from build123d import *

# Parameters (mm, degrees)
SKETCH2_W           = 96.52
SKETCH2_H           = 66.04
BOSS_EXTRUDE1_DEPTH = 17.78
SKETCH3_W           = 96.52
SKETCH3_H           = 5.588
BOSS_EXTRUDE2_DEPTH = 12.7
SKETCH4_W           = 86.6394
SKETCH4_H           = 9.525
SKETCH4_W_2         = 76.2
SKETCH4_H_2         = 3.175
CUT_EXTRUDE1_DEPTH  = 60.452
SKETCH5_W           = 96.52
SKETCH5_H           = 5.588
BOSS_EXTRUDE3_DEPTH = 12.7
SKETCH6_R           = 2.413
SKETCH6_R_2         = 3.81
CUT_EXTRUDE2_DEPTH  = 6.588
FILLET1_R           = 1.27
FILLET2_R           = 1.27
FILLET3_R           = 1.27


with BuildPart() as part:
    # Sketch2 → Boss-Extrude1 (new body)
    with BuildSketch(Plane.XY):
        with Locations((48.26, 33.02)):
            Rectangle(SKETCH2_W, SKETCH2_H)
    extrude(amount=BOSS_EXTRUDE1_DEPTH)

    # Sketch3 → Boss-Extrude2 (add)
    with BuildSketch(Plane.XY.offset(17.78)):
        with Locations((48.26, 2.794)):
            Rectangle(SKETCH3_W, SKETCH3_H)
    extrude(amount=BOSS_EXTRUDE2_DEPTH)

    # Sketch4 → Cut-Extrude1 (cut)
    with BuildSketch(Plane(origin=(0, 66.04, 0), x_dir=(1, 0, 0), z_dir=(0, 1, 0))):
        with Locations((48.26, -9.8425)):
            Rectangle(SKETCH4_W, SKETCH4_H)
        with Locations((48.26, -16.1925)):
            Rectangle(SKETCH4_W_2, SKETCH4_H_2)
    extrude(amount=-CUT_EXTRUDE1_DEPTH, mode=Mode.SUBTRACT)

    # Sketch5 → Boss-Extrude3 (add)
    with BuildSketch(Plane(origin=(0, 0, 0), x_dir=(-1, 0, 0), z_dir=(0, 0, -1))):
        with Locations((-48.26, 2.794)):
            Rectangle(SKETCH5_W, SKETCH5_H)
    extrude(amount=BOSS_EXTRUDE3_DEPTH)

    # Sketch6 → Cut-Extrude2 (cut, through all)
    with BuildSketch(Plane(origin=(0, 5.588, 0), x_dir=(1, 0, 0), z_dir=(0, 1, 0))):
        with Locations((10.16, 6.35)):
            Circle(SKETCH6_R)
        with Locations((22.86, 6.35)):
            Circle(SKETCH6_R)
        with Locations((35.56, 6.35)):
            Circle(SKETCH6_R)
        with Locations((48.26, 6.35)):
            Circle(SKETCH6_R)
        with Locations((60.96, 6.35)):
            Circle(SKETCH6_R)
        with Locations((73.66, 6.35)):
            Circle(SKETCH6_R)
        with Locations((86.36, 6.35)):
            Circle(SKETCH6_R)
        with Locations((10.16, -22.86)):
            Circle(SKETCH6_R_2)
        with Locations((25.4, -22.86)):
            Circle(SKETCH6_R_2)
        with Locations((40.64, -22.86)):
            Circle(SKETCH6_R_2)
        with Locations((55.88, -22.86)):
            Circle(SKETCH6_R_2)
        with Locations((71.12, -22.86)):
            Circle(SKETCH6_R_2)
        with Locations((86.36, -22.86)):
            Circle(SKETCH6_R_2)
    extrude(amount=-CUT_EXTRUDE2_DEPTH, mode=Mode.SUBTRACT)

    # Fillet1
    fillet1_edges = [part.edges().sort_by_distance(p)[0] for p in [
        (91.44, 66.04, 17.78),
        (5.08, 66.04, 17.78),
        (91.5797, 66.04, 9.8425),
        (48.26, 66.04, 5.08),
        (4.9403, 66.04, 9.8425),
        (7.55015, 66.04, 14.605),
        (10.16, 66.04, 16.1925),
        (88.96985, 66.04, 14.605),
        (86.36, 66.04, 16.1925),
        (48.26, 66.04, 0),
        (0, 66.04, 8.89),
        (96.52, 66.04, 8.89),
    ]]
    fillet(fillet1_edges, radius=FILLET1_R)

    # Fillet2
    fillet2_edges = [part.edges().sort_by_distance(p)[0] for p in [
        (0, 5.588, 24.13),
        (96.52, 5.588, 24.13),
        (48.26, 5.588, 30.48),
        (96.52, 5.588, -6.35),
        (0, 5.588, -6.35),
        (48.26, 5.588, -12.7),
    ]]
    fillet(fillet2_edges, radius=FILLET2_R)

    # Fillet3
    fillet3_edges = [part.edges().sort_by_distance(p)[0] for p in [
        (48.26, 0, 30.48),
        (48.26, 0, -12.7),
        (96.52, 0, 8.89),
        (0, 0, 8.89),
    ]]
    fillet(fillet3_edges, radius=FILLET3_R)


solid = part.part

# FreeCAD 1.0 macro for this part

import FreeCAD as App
import Part
import Sketcher
from FreeCAD import Vector
Q = App.Units.Quantity


def edges_at(feature, points):
    """Names of the edges that pass closest to the given points."""
    edges = feature.Shape.Edges
    near = lambda p: min(range(len(edges)), key=lambda i: edges[i].distToShape(Part.Vertex(*p))[0])
    return sorted({f"Edge{near(p) + 1}" for p in points})

doc = App.newDocument("Part")
body = doc.addObject("PartDesign::Body", "Body")

sketch1 = doc.addObject("Sketcher::SketchObject", "Sketch")
body.addObject(sketch1)
sketch1.AttachmentSupport = (doc.XY_Plane, [""])
sketch1.MapMode = "FlatFace"
sketch1.addGeometry([
    Part.LineSegment(Vector(0, 66.04, 0), Vector(0, 0, 0)),
    Part.LineSegment(Vector(0, 0, 0), Vector(96.52, 0, 0)),
    Part.LineSegment(Vector(96.52, 0, 0), Vector(96.52, 66.04, 0)),
    Part.LineSegment(Vector(96.52, 66.04, 0), Vector(0, 66.04, 0)),
], False)
sketch1.addConstraint([
    Sketcher.Constraint("Coincident", 0, 2, 1, 1),
    Sketcher.Constraint("Coincident", 1, 2, 2, 1),
    Sketcher.Constraint("Coincident", 2, 2, 3, 1),
    Sketcher.Constraint("Coincident", 3, 2, 0, 1),
    Sketcher.Constraint("Vertical", 0),
    Sketcher.Constraint("Horizontal", 1),
    Sketcher.Constraint("Vertical", 2),
    Sketcher.Constraint("Horizontal", 3),
    Sketcher.Constraint("Coincident", 0, 2, -1, 1),
    Sketcher.Constraint("DistanceX", 1, 1, 1, 2, Q("3.8 in")),
    Sketcher.Constraint("DistanceY", 0, 2, 0, 1, Q("2.6 in")),
])
pad1 = doc.addObject("PartDesign::Pad", "Pad")
body.addObject(pad1)
pad1.Profile = sketch1
pad1.Length = Q("0.7 in")

sketch2 = doc.addObject("Sketcher::SketchObject", "Sketch001")
body.addObject(sketch2)
sketch2.AttachmentSupport = (doc.XY_Plane, [""])
sketch2.MapMode = "FlatFace"
sketch2.AttachmentOffset = App.Placement(Vector(0, 0, 0.7 * 25.4), App.Rotation())
sketch2.addGeometry([
    Part.LineSegment(Vector(0, 5.588, 0), Vector(0, 0, 0)),
    Part.LineSegment(Vector(0, 0, 0), Vector(96.52, 0, 0)),
    Part.LineSegment(Vector(96.52, 0, 0), Vector(96.52, 5.588, 0)),
    Part.LineSegment(Vector(96.52, 5.588, 0), Vector(0, 5.588, 0)),
], False)
sketch2.addConstraint([
    Sketcher.Constraint("Coincident", 0, 2, 1, 1),
    Sketcher.Constraint("Coincident", 1, 2, 2, 1),
    Sketcher.Constraint("Coincident", 2, 2, 3, 1),
    Sketcher.Constraint("Coincident", 3, 2, 0, 1),
    Sketcher.Constraint("Vertical", 0),
    Sketcher.Constraint("Horizontal", 1),
    Sketcher.Constraint("Vertical", 2),
    Sketcher.Constraint("Horizontal", 3),
    Sketcher.Constraint("Coincident", 0, 2, -1, 1),
    Sketcher.Constraint("DistanceX", 1, 1, 1, 2, Q("3.8 in")),
    Sketcher.Constraint("DistanceY", 0, 2, 0, 1, Q("0.22 in")),
])
pad2 = doc.addObject("PartDesign::Pad", "Pad001")
body.addObject(pad2)
pad2.Profile = sketch2
pad2.Length = Q("0.5 in")

sketch3 = doc.addObject("Sketcher::SketchObject", "Sketch002")
body.addObject(sketch3)
sketch3.AttachmentSupport = (doc.XZ_Plane, [""])
sketch3.MapMode = "FlatFace"
sketch3.AttachmentOffset = App.Placement(Vector(0, 0, -2.6 * 25.4), App.Rotation())
sketch3.addGeometry([
    Part.LineSegment(Vector(4.9403, 5.08, 0), Vector(4.9403, 14.605, 0)),
    Part.LineSegment(Vector(4.9403, 14.605, 0), Vector(10.16, 14.605, 0)),
    Part.LineSegment(Vector(10.16, 14.605, 0), Vector(10.16, 17.78, 0)),
    Part.LineSegment(Vector(10.16, 17.78, 0), Vector(86.36, 17.78, 0)),
    Part.LineSegment(Vector(86.36, 17.78, 0), Vector(86.36, 14.605, 0)),
    Part.LineSegment(Vector(86.36, 14.605, 0), Vector(91.5797, 14.605, 0)),
    Part.LineSegment(Vector(91.5797, 14.605, 0), Vector(91.5797, 5.08, 0)),
    Part.LineSegment(Vector(91.5797, 5.08, 0), Vector(4.9403, 5.08, 0)),
], False)
sketch3.addConstraint([
    Sketcher.Constraint("Coincident", 0, 2, 1, 1),
    Sketcher.Constraint("Coincident", 1, 2, 2, 1),
    Sketcher.Constraint("Coincident", 2, 2, 3, 1),
    Sketcher.Constraint("Coincident", 3, 2, 4, 1),
    Sketcher.Constraint("Coincident", 4, 2, 5, 1),
    Sketcher.Constraint("Coincident", 5, 2, 6, 1),
    Sketcher.Constraint("Coincident", 6, 2, 7, 1),
    Sketcher.Constraint("Coincident", 7, 2, 0, 1),
    Sketcher.Constraint("Vertical", 0),
    Sketcher.Constraint("Horizontal", 1),
    Sketcher.Constraint("Vertical", 2),
    Sketcher.Constraint("Horizontal", 3),
    Sketcher.Constraint("Vertical", 4),
    Sketcher.Constraint("Horizontal", 5),
    Sketcher.Constraint("Vertical", 6),
    Sketcher.Constraint("Horizontal", 7),
    Sketcher.Constraint("Horizontal", 1, 2, 4, 2),
    Sketcher.Constraint("Equal", 1, 5),
    Sketcher.Constraint("DistanceX", 3, 1, 3, 2, Q("3 in")),
    Sketcher.Constraint("DistanceX", -1, 1, 1, 2, Q("0.4 in")),
    Sketcher.Constraint("DistanceY", -1, 1, 2, 2, Q("0.7 in")),
    Sketcher.Constraint("DistanceY", -1, 1, 6, 2, Q("0.2 in")),
    Sketcher.Constraint("DistanceX", 7, 2, 7, 1, Q("3.411 in")),
    Sketcher.Constraint("DistanceY", 0, 1, 0, 2, Q("0.375 in")),
])
pocket1 = doc.addObject("PartDesign::Pocket", "Pocket")
body.addObject(pocket1)
pocket1.Profile = sketch3
pocket1.Length = Q("2.38 in")
pocket1.Reversed = True

sketch4 = doc.addObject("Sketcher::SketchObject", "Sketch003")
body.addObject(sketch4)
sketch4.AttachmentSupport = (doc.XY_Plane, [""])
sketch4.MapMode = "FlatFace"
sketch4.addGeometry([
    Part.LineSegment(Vector(96.52, 5.588, 0), Vector(96.52, 0, 0)),
    Part.LineSegment(Vector(96.52, 0, 0), Vector(0, 0, 0)),
    Part.LineSegment(Vector(0, 0, 0), Vector(0, 5.588, 0)),
    Part.LineSegment(Vector(0, 5.588, 0), Vector(96.52, 5.588, 0)),
], False)
sketch4.addConstraint([
    Sketcher.Constraint("Coincident", 0, 2, 1, 1),
    Sketcher.Constraint("Coincident", 1, 2, 2, 1),
    Sketcher.Constraint("Coincident", 2, 2, 3, 1),
    Sketcher.Constraint("Coincident", 3, 2, 0, 1),
    Sketcher.Constraint("Vertical", 0),
    Sketcher.Constraint("Horizontal", 1),
    Sketcher.Constraint("Vertical", 2),
    Sketcher.Constraint("Horizontal", 3),
    Sketcher.Constraint("Coincident", 1, 2, -1, 1),
    Sketcher.Constraint("DistanceX", 1, 2, 1, 1, Q("3.8 in")),
    Sketcher.Constraint("DistanceY", 0, 2, 0, 1, Q("0.22 in")),
])
pad3 = doc.addObject("PartDesign::Pad", "Pad002")
body.addObject(pad3)
pad3.Profile = sketch4
pad3.Length = Q("0.5 in")
pad3.Reversed = True

sketch5 = doc.addObject("Sketcher::SketchObject", "Sketch004")
body.addObject(sketch5)
sketch5.AttachmentSupport = (doc.XZ_Plane, [""])
sketch5.MapMode = "FlatFace"
sketch5.AttachmentOffset = App.Placement(Vector(0, 0, -0.22 * 25.4), App.Rotation())
sketch5.addGeometry([
    Part.Circle(Vector(10.16, -6.35, 0), Vector(0, 0, 1), 2.413),
    Part.Circle(Vector(22.86, -6.35, 0), Vector(0, 0, 1), 2.413),
    Part.Circle(Vector(35.56, -6.35, 0), Vector(0, 0, 1), 2.413),
    Part.Circle(Vector(48.26, -6.35, 0), Vector(0, 0, 1), 2.413),
    Part.Circle(Vector(60.96, -6.35, 0), Vector(0, 0, 1), 2.413),
    Part.Circle(Vector(73.66, -6.35, 0), Vector(0, 0, 1), 2.413),
    Part.Circle(Vector(86.36, -6.35, 0), Vector(0, 0, 1), 2.413),
    Part.Circle(Vector(10.16, 22.86, 0), Vector(0, 0, 1), 3.81),
    Part.Circle(Vector(25.4, 22.86, 0), Vector(0, 0, 1), 3.81),
    Part.Circle(Vector(40.64, 22.86, 0), Vector(0, 0, 1), 3.81),
    Part.Circle(Vector(55.88, 22.86, 0), Vector(0, 0, 1), 3.81),
    Part.Circle(Vector(71.12, 22.86, 0), Vector(0, 0, 1), 3.81),
    Part.Circle(Vector(86.36, 22.86, 0), Vector(0, 0, 1), 3.81),
], False)
sketch5.addConstraint([
    Sketcher.Constraint("Equal", 0, 1),
    Sketcher.Constraint("Equal", 1, 2),
    Sketcher.Constraint("Equal", 2, 3),
    Sketcher.Constraint("Equal", 3, 4),
    Sketcher.Constraint("Equal", 4, 5),
    Sketcher.Constraint("Equal", 5, 6),
    Sketcher.Constraint("Equal", 7, 8),
    Sketcher.Constraint("Equal", 8, 9),
    Sketcher.Constraint("Equal", 9, 10),
    Sketcher.Constraint("Equal", 10, 11),
    Sketcher.Constraint("Equal", 11, 12),
    Sketcher.Constraint("Horizontal", 0, 3, 1, 3),
    Sketcher.Constraint("Horizontal", 1, 3, 2, 3),
    Sketcher.Constraint("Horizontal", 2, 3, 3, 3),
    Sketcher.Constraint("Horizontal", 3, 3, 4, 3),
    Sketcher.Constraint("Horizontal", 4, 3, 5, 3),
    Sketcher.Constraint("Horizontal", 5, 3, 6, 3),
    Sketcher.Constraint("Horizontal", 7, 3, 8, 3),
    Sketcher.Constraint("Horizontal", 8, 3, 9, 3),
    Sketcher.Constraint("Horizontal", 9, 3, 10, 3),
    Sketcher.Constraint("Horizontal", 10, 3, 11, 3),
    Sketcher.Constraint("Horizontal", 11, 3, 12, 3),
    Sketcher.Constraint("Vertical", 0, 3, 7, 3),
    Sketcher.Constraint("Vertical", 6, 3, 12, 3),
    Sketcher.Constraint("Diameter", 7, Q("0.3 in")),
    Sketcher.Constraint("Diameter", 0, Q("0.19 in")),
    Sketcher.Constraint("DistanceX", -1, 1, 8, 3, Q("1 in")),
    Sketcher.Constraint("DistanceX", 0, 3, 2, 3, Q("1 in")),
    Sketcher.Constraint("DistanceX", 1, 3, 3, 3, Q("1 in")),
    Sketcher.Constraint("DistanceX", 2, 3, 4, 3, Q("1 in")),
    Sketcher.Constraint("DistanceX", 3, 3, 5, 3, Q("1 in")),
    Sketcher.Constraint("DistanceX", 4, 3, 6, 3, Q("1 in")),
    Sketcher.Constraint("DistanceX", -1, 1, 0, 3, Q("0.4 in")),
    Sketcher.Constraint("DistanceX", -1, 1, 1, 3, Q("0.9 in")),
    Sketcher.Constraint("DistanceY", -1, 1, 7, 3, Q("0.9 in")),
    Sketcher.Constraint("DistanceX", -1, 1, 9, 3, Q("1.6 in")),
    Sketcher.Constraint("DistanceX", -1, 1, 10, 3, Q("2.2 in")),
    Sketcher.Constraint("DistanceX", -1, 1, 11, 3, Q("2.8 in")),
    Sketcher.Constraint("DistanceY", 0, 3, -1, 1, Q("0.25 in")),
])
pocket2 = doc.addObject("PartDesign::Pocket", "Pocket001")
body.addObject(pocket2)
pocket2.Profile = sketch5
pocket2.Type = "ThroughAll"
pocket2.Reversed = True
doc.recompute()

fillet = doc.addObject("PartDesign::Fillet", "Fillet")
body.addObject(fillet)
fillet.Base = (pocket2, edges_at(pocket2, [
    (91.44, 66.04, 17.78),
    (5.08, 66.04, 17.78),
    (91.58, 66.04, 9.842),
    (48.26, 66.04, 5.08),
    (4.94, 66.04, 9.842),
    (7.55, 66.04, 14.605),
    (10.16, 66.04, 16.192),
    (88.97, 66.04, 14.605),
    (86.36, 66.04, 16.192),
    (48.26, 66.04, 0),
    (0, 66.04, 8.89),
    (96.52, 66.04, 8.89),
]))
fillet.Radius = Q("0.05 in")
doc.recompute()

fillet2 = doc.addObject("PartDesign::Fillet", "Fillet001")
body.addObject(fillet2)
fillet2.Base = (fillet, edges_at(fillet, [
    (0, 5.588, 24.13),
    (96.52, 5.588, 24.13),
    (48.26, 5.588, 30.48),
    (96.52, 5.588, -6.35),
    (0, 5.588, -6.35),
    (48.26, 5.588, -12.7),
]))
fillet2.Radius = Q("0.05 in")
doc.recompute()

fillet3 = doc.addObject("PartDesign::Fillet", "Fillet002")
body.addObject(fillet3)
fillet3.Base = (fillet2, edges_at(fillet2, [
    (48.26, 0, 30.48),
    (48.26, 0, -12.7),
    (96.52, 0, 8.89),
    (0, 0, 8.89),
]))
fillet3.Radius = Q("0.05 in")

doc.recompute()
